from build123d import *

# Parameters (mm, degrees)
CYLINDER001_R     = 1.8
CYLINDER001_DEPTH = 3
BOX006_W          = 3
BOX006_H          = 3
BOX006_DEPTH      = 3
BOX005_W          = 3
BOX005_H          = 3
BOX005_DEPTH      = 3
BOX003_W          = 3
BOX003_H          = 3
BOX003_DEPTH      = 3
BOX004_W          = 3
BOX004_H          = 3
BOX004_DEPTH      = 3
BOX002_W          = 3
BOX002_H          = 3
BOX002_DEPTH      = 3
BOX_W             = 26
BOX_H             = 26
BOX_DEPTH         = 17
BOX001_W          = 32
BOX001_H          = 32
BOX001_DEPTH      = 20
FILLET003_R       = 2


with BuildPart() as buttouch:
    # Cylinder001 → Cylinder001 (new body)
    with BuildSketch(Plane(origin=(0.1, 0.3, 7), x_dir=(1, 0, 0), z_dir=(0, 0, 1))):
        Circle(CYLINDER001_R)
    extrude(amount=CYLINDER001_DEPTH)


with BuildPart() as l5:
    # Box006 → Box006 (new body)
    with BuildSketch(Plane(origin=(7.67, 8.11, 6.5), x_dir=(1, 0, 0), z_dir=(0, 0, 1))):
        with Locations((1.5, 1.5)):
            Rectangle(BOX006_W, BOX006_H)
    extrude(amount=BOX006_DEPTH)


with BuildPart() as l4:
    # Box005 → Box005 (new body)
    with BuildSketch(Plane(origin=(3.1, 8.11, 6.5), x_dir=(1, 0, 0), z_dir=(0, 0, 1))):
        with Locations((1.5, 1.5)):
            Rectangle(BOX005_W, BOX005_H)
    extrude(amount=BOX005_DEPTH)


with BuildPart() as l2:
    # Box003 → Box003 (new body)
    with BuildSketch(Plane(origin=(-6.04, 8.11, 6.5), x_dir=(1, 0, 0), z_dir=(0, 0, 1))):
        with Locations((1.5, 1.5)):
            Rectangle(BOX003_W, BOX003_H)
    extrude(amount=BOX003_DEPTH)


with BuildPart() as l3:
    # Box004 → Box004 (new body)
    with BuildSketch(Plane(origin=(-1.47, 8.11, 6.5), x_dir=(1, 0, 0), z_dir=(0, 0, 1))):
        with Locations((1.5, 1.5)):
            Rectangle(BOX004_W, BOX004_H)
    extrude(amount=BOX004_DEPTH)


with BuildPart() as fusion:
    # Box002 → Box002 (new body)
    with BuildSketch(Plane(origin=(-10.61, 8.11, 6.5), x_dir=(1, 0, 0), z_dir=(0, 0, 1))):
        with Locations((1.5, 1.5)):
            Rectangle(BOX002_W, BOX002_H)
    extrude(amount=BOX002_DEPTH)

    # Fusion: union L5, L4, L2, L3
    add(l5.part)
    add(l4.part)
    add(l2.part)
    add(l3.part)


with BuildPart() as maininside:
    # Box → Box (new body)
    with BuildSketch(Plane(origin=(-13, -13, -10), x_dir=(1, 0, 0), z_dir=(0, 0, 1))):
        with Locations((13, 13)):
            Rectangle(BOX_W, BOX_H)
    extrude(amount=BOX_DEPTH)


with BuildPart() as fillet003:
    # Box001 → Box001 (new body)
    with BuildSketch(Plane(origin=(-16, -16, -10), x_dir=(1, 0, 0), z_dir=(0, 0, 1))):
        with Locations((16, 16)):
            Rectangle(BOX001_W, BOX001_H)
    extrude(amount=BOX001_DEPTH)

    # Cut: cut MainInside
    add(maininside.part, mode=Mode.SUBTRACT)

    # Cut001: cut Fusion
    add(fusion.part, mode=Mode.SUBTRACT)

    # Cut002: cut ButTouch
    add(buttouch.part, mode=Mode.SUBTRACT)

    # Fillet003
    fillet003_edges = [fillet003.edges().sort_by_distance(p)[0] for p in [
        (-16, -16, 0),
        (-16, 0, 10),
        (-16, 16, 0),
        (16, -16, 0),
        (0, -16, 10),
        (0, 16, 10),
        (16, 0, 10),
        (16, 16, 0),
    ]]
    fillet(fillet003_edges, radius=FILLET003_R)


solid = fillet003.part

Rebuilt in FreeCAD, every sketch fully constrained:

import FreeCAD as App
import Part
import Sketcher

V = App.Vector
Q = App.Units.Quantity


def edges_at(feature, points):
    """Names of the edges that pass closest to the given points."""
    edges = feature.Shape.Edges
    near = lambda p: min(range(len(edges)), key=lambda i: edges[i].distToShape(Part.Vertex(*p))[0])
    return sorted({f"Edge{near(p) + 1}" for p in points})

doc = App.newDocument("Part")
params = doc.addObject("Spreadsheet::Sheet", "Params")
for row, (alias, value) in enumerate([
    ("sketch1_diameter", "3.6 mm"),
    ("pad1_length", "3 mm"),
    ("sketch2_width", "3 mm"),
    ("pad2_length", "3 mm"),
    ("sketch3_width", "3 mm"),
    ("pad3_length", "3 mm"),
    ("sketch4_width", "3 mm"),
    ("pad4_length", "3 mm"),
    ("sketch5_width", "3 mm"),
    ("pad5_length", "3 mm"),
    ("sketch6_width", "3 mm"),
    ("pad6_length", "3 mm"),
    ("sketch7_width", "26 mm"),
    ("pad7_length", "17 mm"),
    ("sketch8_width", "32 mm"),
    ("pad8_length", "20 mm"),
    ("fillet_radius", "2 mm"),
], start=1):
    params.set(f"A{row}", alias)
    params.set(f"B{row}", "=" + value)
    params.setAlias(f"B{row}", alias)

body = doc.addObject("PartDesign::Body", "Body")

sketch1 = body.newObject("Sketcher::SketchObject", "Sketch")
sketch1.AttachmentSupport = (doc.getObject("XY_Plane"), [""])
sketch1.MapMode = "FlatFace"
sketch1.AttachmentOffset = App.Placement(V(0, 0, 7), App.Rotation())
sketch1.addGeometry(Part.Circle(V(0.1, 0.3, 0), V(0, 0, 1), 1.8), False)
sketch1.addConstraint([
    Sketcher.Constraint("Diameter", 0, Q("3.6 mm")),
    Sketcher.Constraint("DistanceX", -1, 1, 0, 3, Q("0.1 mm")),
    Sketcher.Constraint("DistanceY", -1, 1, 0, 3, Q("0.3 mm")),
])
sketch1.setExpression("Constraints[0]", "Params.sketch1_diameter")
pad1 = body.newObject("PartDesign::Pad", "Pad")
pad1.Profile = sketch1
pad1.setExpression("Length", "Params.pad1_length")
body2 = doc.addObject("PartDesign::Body", "Body001")

sketch2 = body2.newObject("Sketcher::SketchObject", "Sketch001")
sketch2.AttachmentSupport = (doc.getObject("XY_Plane001"), [""])
sketch2.MapMode = "FlatFace"
sketch2.AttachmentOffset = App.Placement(V(0, 0, 6.5), App.Rotation())
sketch2.addGeometry([
    Part.LineSegment(V(7.7, 11.1, 0), V(7.7, 8.1, 0)),
    Part.LineSegment(V(7.7, 8.1, 0), V(10.7, 8.1, 0)),
    Part.LineSegment(V(10.7, 8.1, 0), V(10.7, 11.1, 0)),
    Part.LineSegment(V(10.7, 11.1, 0), V(7.7, 11.1, 0)),
], False)
sketch2.addConstraint([
    Sketcher.Constraint("Coincident", 0, 2, 1, 1),
    Sketcher.Constraint("Coincident", 1, 2, 2, 1),
    Sketcher.Constraint("Coincident", 2, 2, 3, 1),
    Sketcher.Constraint("Coincident", 3, 2, 0, 1),
    Sketcher.Constraint("Vertical", 0),
    Sketcher.Constraint("Horizontal", 1),
    Sketcher.Constraint("Vertical", 2),
    Sketcher.Constraint("Horizontal", 3),
    Sketcher.Constraint("Equal", 3, 0),
    Sketcher.Constraint("DistanceX", 1, 1, 1, 2, Q("3 mm")),
    Sketcher.Constraint("DistanceX", -1, 1, 0, 2, Q("7.67 mm")),
    Sketcher.Constraint("DistanceY", -1, 1, 0, 2, Q("8.11 mm")),
])
sketch2.setExpression("Constraints[9]", "Params.sketch2_width")
pad2 = body2.newObject("PartDesign::Pad", "Pad001")
pad2.Profile = sketch2
pad2.setExpression("Length", "Params.pad2_length")
body3 = doc.addObject("PartDesign::Body", "Body002")

sketch3 = body3.newObject("Sketcher::SketchObject", "Sketch002")
sketch3.AttachmentSupport = (doc.getObject("XY_Plane002"), [""])
sketch3.MapMode = "FlatFace"
sketch3.AttachmentOffset = App.Placement(V(0, 0, 6.5), App.Rotation())
sketch3.addGeometry([
    Part.LineSegment(V(3.1, 11.1, 0), V(3.1, 8.1, 0)),
    Part.LineSegment(V(3.1, 8.1, 0), V(6.1, 8.1, 0)),
    Part.LineSegment(V(6.1, 8.1, 0), V(6.1, 11.1, 0)),
    Part.LineSegment(V(6.1, 11.1, 0), V(3.1, 11.1, 0)),
], False)
sketch3.addConstraint([
    Sketcher.Constraint("Coincident", 0, 2, 1, 1),
    Sketcher.Constraint("Coincident", 1, 2, 2, 1),
    Sketcher.Constraint("Coincident", 2, 2, 3, 1),
    Sketcher.Constraint("Coincident", 3, 2, 0, 1),
    Sketcher.Constraint("Vertical", 0),
    Sketcher.Constraint("Horizontal", 1),
    Sketcher.Constraint("Vertical", 2),
    Sketcher.Constraint("Horizontal", 3),
    Sketcher.Constraint("Equal", 3, 0),
    Sketcher.Constraint("DistanceX", 1, 1, 1, 2, Q("3 mm")),
    Sketcher.Constraint("DistanceX", -1, 1, 0, 2, Q("3.1 mm")),
    Sketcher.Constraint("DistanceY", -1, 1, 0, 2, Q("8.11 mm")),
])
sketch3.setExpression("Constraints[9]", "Params.sketch3_width")
pad3 = body3.newObject("PartDesign::Pad", "Pad002")
pad3.Profile = sketch3
pad3.setExpression("Length", "Params.pad3_length")
body4 = doc.addObject("PartDesign::Body", "Body003")

sketch4 = body4.newObject("Sketcher::SketchObject", "Sketch003")
sketch4.AttachmentSupport = (doc.getObject("XY_Plane003"), [""])
sketch4.MapMode = "FlatFace"
sketch4.AttachmentOffset = App.Placement(V(0, 0, 6.5), App.Rotation())
sketch4.addGeometry([
    Part.LineSegment(V(-6, 11.1, 0), V(-6, 8.1, 0)),
    Part.LineSegment(V(-6, 8.1, 0), V(-3, 8.1, 0)),
    Part.LineSegment(V(-3, 8.1, 0), V(-3, 11.1, 0)),
    Part.LineSegment(V(-3, 11.1, 0), V(-6, 11.1, 0)),
], False)
sketch4.addConstraint([
    Sketcher.Constraint("Coincident", 0, 2, 1, 1),
    Sketcher.Constraint("Coincident", 1, 2, 2, 1),
    Sketcher.Constraint("Coincident", 2, 2, 3, 1),
    Sketcher.Constraint("Coincident", 3, 2, 0, 1),
    Sketcher.Constraint("Vertical", 0),
    Sketcher.Constraint("Horizontal", 1),
    Sketcher.Constraint("Vertical", 2),
    Sketcher.Constraint("Horizontal", 3),
    Sketcher.Constraint("Equal", 3, 0),
    Sketcher.Constraint("DistanceX", 1, 1, 1, 2, Q("3 mm")),
    Sketcher.Constraint("DistanceX", 0, 2, -1, 1, Q("6.04 mm")),
    Sketcher.Constraint("DistanceY", -1, 1, 0, 2, Q("8.11 mm")),
])
sketch4.setExpression("Constraints[9]", "Params.sketch4_width")
pad4 = body4.newObject("PartDesign::Pad", "Pad003")
pad4.Profile = sketch4
pad4.setExpression("Length", "Params.pad4_length")
body5 = doc.addObject("PartDesign::Body", "Body004")

sketch5 = body5.newObject("Sketcher::SketchObject", "Sketch004")
sketch5.AttachmentSupport = (doc.getObject("XY_Plane004"), [""])
sketch5.MapMode = "FlatFace"
sketch5.AttachmentOffset = App.Placement(V(0, 0, 6.5), App.Rotation())
sketch5.addGeometry([
    Part.LineSegment(V(-1.5, 11.1, 0), V(-1.5, 8.1, 0)),
    Part.LineSegment(V(-1.5, 8.1, 0), V(1.5, 8.1, 0)),
    Part.LineSegment(V(1.5, 8.1, 0), V(1.5, 11.1, 0)),
    Part.LineSegment(V(1.5, 11.1, 0), V(-1.5, 11.1, 0)),
], False)
sketch5.addConstraint([
    Sketcher.Constraint("Coincident", 0, 2, 1, 1),
    Sketcher.Constraint("Coincident", 1, 2, 2, 1),
    Sketcher.Constraint("Coincident", 2, 2, 3, 1),
    Sketcher.Constraint("Coincident", 3, 2, 0, 1),
    Sketcher.Constraint("Vertical", 0),
    Sketcher.Constraint("Horizontal", 1),
    Sketcher.Constraint("Vertical", 2),
    Sketcher.Constraint("Horizontal", 3),
    Sketcher.Constraint("Equal", 3, 0),
    Sketcher.Constraint("DistanceX", 1, 1, 1, 2, Q("3 mm")),
    Sketcher.Constraint("DistanceX", 0, 2, -1, 1, Q("1.47 mm")),
    Sketcher.Constraint("DistanceY", -1, 1, 0, 2, Q("8.11 mm")),
])
sketch5.setExpression("Constraints[9]", "Params.sketch5_width")
pad5 = body5.newObject("PartDesign::Pad", "Pad004")
pad5.Profile = sketch5
pad5.setExpression("Length", "Params.pad5_length")
body6 = doc.addObject("PartDesign::Body", "Body005")
body6.AllowCompound = True

sketch6 = body6.newObject("Sketcher::SketchObject", "Sketch005")
sketch6.AttachmentSupport = (doc.getObject("XY_Plane005"), [""])
sketch6.MapMode = "FlatFace"
sketch6.AttachmentOffset = App.Placement(V(0, 0, 6.5), App.Rotation())
sketch6.addGeometry([
    Part.LineSegment(V(-10.6, 11.1, 0), V(-10.6, 8.1, 0)),
    Part.LineSegment(V(-10.6, 8.1, 0), V(-7.6, 8.1, 0)),
    Part.LineSegment(V(-7.6, 8.1, 0), V(-7.6, 11.1, 0)),
    Part.LineSegment(V(-7.6, 11.1, 0), V(-10.6, 11.1, 0)),
], False)
sketch6.addConstraint([
    Sketcher.Constraint("Coincident", 0, 2, 1, 1),
    Sketcher.Constraint("Coincident", 1, 2, 2, 1),
    Sketcher.Constraint("Coincident", 2, 2, 3, 1),
    Sketcher.Constraint("Coincident", 3, 2, 0, 1),
    Sketcher.Constraint("Vertical", 0),
    Sketcher.Constraint("Horizontal", 1),
    Sketcher.Constraint("Vertical", 2),
    Sketcher.Constraint("Horizontal", 3),
    Sketcher.Constraint("Equal", 3, 0),
    Sketcher.Constraint("DistanceX", 1, 1, 1, 2, Q("3 mm")),
    Sketcher.Constraint("DistanceX", 0, 2, -1, 1, Q("10.61 mm")),
    Sketcher.Constraint("DistanceY", -1, 1, 0, 2, Q("8.11 mm")),
])
sketch6.setExpression("Constraints[9]", "Params.sketch6_width")
pad6 = body6.newObject("PartDesign::Pad", "Pad005")
pad6.Profile = sketch6
pad6.setExpression("Length", "Params.pad6_length")
doc.recompute()

boolean = body6.newObject("PartDesign::Boolean", "Boolean")
boolean.Type = "Fuse"
boolean.addObjects([body2])
doc.recompute()

boolean2 = body6.newObject("PartDesign::Boolean", "Boolean001")
boolean2.Type = "Fuse"
boolean2.addObjects([body3])
doc.recompute()

boolean3 = body6.newObject("PartDesign::Boolean", "Boolean002")
boolean3.Type = "Fuse"
boolean3.addObjects([body4])
doc.recompute()

boolean4 = body6.newObject("PartDesign::Boolean", "Boolean003")
boolean4.Type = "Fuse"
boolean4.addObjects([body5])
body7 = doc.addObject("PartDesign::Body", "Body006")

sketch7 = body7.newObject("Sketcher::SketchObject", "Sketch006")
sketch7.AttachmentSupport = (doc.getObject("XY_Plane006"), [""])
sketch7.MapMode = "FlatFace"
sketch7.AttachmentOffset = App.Placement(V(0, 0, -10), App.Rotation())
sketch7.addGeometry([
    Part.LineSegment(V(-13, 13, 0), V(-13, -13, 0)),
    Part.LineSegment(V(-13, -13, 0), V(13, -13, 0)),
    Part.LineSegment(V(13, -13, 0), V(13, 13, 0)),
    Part.LineSegment(V(13, 13, 0), V(-13, 13, 0)),
], False)
sketch7.addConstraint([
    Sketcher.Constraint("Coincident", 0, 2, 1, 1),
    Sketcher.Constraint("Coincident", 1, 2, 2, 1),
    Sketcher.Constraint("Coincident", 2, 2, 3, 1),
    Sketcher.Constraint("Coincident", 3, 2, 0, 1),
    Sketcher.Constraint("Vertical", 0),
    Sketcher.Constraint("Horizontal", 1),
    Sketcher.Constraint("Vertical", 2),
    Sketcher.Constraint("Horizontal", 3),
    Sketcher.Constraint("Symmetric", 0, 2, 2, 2, -1, 1),
    Sketcher.Constraint("Equal", 3, 0),
    Sketcher.Constraint("DistanceX", 1, 1, 1, 2, Q("26 mm")),
])
sketch7.setExpression("Constraints[10]", "Params.sketch7_width")
pad7 = body7.newObject("PartDesign::Pad", "Pad006")
pad7.Profile = sketch7
pad7.setExpression("Length", "Params.pad7_length")
body8 = doc.addObject("PartDesign::Body", "Body007")

sketch8 = body8.newObject("Sketcher::SketchObject", "Sketch007")
sketch8.AttachmentSupport = (doc.getObject("XY_Plane007"), [""])
sketch8.MapMode = "FlatFace"
sketch8.AttachmentOffset = App.Placement(V(0, 0, -10), App.Rotation())
sketch8.addGeometry([
    Part.LineSegment(V(-16, 16, 0), V(-16, -16, 0)),
    Part.LineSegment(V(-16, -16, 0), V(16, -16, 0)),
    Part.LineSegment(V(16, -16, 0), V(16, 16, 0)),
    Part.LineSegment(V(16, 16, 0), V(-16, 16, 0)),
], False)
sketch8.addConstraint([
    Sketcher.Constraint("Coincident", 0, 2, 1, 1),
    Sketcher.Constraint("Coincident", 1, 2, 2, 1),
    Sketcher.Constraint("Coincident", 2, 2, 3, 1),
    Sketcher.Constraint("Coincident", 3, 2, 0, 1),
    Sketcher.Constraint("Vertical", 0),
    Sketcher.Constraint("Horizontal", 1),
    Sketcher.Constraint("Vertical", 2),
    Sketcher.Constraint("Horizontal", 3),
    Sketcher.Constraint("Symmetric", 0, 2, 2, 2, -1, 1),
    Sketcher.Constraint("Equal", 3, 0),
    Sketcher.Constraint("DistanceX", 1, 1, 1, 2, Q("32 mm")),
])
sketch8.setExpression("Constraints[10]", "Params.sketch8_width")
pad8 = body8.newObject("PartDesign::Pad", "Pad007")
pad8.Profile = sketch8
pad8.setExpression("Length", "Params.pad8_length")
doc.recompute()

boolean5 = body8.newObject("PartDesign::Boolean", "Boolean004")
boolean5.Type = "Cut"
boolean5.addObjects([body7])
doc.recompute()

boolean6 = body8.newObject("PartDesign::Boolean", "Boolean005")
boolean6.Type = "Cut"
boolean6.addObjects([body6])
doc.recompute()

boolean7 = body8.newObject("PartDesign::Boolean", "Boolean006")
boolean7.Type = "Cut"
boolean7.addObjects([body])
doc.recompute()

fillet = body8.newObject("PartDesign::Fillet", "Fillet")
fillet.Base = (boolean7, edges_at(boolean7, [
    (-16, -16, 0),
    (-16, 0, 10),
    (-16, 16, 0),
    (16, -16, 0),
    (0, -16, 10),
    (0, 16, 10),
    (16, 0, 10),
    (16, 16, 0),
]))
fillet.setExpression("Radius", "Params.fillet_radius")

doc.recompute()
